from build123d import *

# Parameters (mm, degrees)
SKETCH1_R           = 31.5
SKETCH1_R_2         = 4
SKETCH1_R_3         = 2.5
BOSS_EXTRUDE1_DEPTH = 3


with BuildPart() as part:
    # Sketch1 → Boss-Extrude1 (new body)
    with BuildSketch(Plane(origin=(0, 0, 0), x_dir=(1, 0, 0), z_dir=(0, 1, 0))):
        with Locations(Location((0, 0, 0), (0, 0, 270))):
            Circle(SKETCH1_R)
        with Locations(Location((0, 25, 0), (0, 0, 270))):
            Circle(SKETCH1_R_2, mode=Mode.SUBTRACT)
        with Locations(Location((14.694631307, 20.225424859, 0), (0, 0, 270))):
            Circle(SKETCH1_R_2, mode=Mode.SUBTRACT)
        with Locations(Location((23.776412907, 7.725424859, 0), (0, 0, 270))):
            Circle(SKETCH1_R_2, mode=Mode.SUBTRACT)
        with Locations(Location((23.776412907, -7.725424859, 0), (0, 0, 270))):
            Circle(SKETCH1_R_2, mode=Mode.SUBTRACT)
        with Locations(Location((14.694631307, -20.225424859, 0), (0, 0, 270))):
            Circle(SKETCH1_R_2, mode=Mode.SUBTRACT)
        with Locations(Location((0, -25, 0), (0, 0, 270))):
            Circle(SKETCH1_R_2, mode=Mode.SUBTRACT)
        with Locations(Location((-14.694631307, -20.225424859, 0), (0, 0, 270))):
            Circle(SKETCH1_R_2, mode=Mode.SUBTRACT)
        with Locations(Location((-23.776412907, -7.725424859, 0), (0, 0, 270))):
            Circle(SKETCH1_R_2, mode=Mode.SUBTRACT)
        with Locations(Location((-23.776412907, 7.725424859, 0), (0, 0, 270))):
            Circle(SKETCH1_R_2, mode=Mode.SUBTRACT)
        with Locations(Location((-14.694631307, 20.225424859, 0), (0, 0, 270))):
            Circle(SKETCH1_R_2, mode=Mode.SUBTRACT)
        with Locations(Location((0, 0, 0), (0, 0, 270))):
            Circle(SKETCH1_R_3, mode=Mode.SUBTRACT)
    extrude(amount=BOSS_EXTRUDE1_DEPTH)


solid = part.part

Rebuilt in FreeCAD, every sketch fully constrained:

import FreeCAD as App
import Part
import Sketcher

doc = App.newDocument("Part")
params = doc.addObject("Spreadsheet::Sheet", "Params")
for row, (alias, value) in enumerate([
    ("sketch1_diameter", "63 mm"),
    ("sketch1_diameter2", "8 mm"),
    ("sketch1_diameter3", "5 mm"),
    ("pad1_length", "3 mm"),
], start=1):
    params.set(f"A{row}", alias)
    params.set(f"B{row}", "=" + value)
    params.setAlias(f"B{row}", alias)

body = doc.addObject("PartDesign::Body", "Body")

sketch1 = body.newObject("Sketcher::SketchObject", "Sketch")
sketch1.AttachmentSupport = (doc.getObject("XZ_Plane"), [""])
sketch1.MapMode = "FlatFace"
sketch1.addGeometry([
    Part.Circle(App.Vector(0, 0, 0), App.Vector(0, 0, 1), 31.5),
    Part.Circle(App.Vector(-14.7, -20.2, 0), App.Vector(0, 0, 1), 4),
    Part.Circle(App.Vector(-23.8, -7.7, 0), App.Vector(0, 0, 1), 4),
    Part.Circle(App.Vector(0, -25, 0), App.Vector(0, 0, 1), 4),
    Part.Circle(App.Vector(-23.8, 7.7, 0), App.Vector(0, 0, 1), 4),
    Part.Circle(App.Vector(-14.7, 20.2, 0), App.Vector(0, 0, 1), 4),
    Part.Circle(App.Vector(14.7, -20.2, 0), App.Vector(0, 0, 1), 4),
    Part.Circle(App.Vector(23.8, -7.7, 0), App.Vector(0, 0, 1), 4),
    Part.Circle(App.Vector(0, 0, 0), App.Vector(0, 0, 1), 2.5),
    Part.Circle(App.Vector(0, 25, 0), App.Vector(0, 0, 1), 4),
    Part.Circle(App.Vector(23.8, 7.7, 0), App.Vector(0, 0, 1), 4),
    Part.Circle(App.Vector(14.7, 20.2, 0), App.Vector(0, 0, 1), 4),
], False)
sketch1.addConstraint([
    Sketcher.Constraint("Coincident", 0, 3, -1, 1),
    Sketcher.Constraint("Coincident", 8, 3, -1, 1),
    Sketcher.Constraint("Equal", 1, 2),
    Sketcher.Constraint("Equal", 2, 3),
    Sketcher.Constraint("Equal", 3, 4),
    Sketcher.Constraint("Equal", 4, 5),
    Sketcher.Constraint("Equal", 5, 6),
    Sketcher.Constraint("Equal", 6, 7),
    Sketcher.Constraint("Equal", 7, 9),
    Sketcher.Constraint("Equal", 9, 10),
    Sketcher.Constraint("Equal", 10, 11),
    Sketcher.Constraint("Symmetric", 5, 3, 6, 3, -1, 1),
    Sketcher.Constraint("Symmetric", 4, 3, 7, 3, -1, 1),
    Sketcher.Constraint("Symmetric", 3, 3, 9, 3, -1, 1),
    Sketcher.Constraint("Symmetric", 2, 3, 10, 3, -1, 1),
    Sketcher.Constraint("Symmetric", 1, 3, 11, 3, -1, 1),
    Sketcher.Constraint("Symmetric", 1, 3, 6, 3, -2),
    Sketcher.Constraint("Symmetric", 2, 3, 7, 3, -2),
    Sketcher.Constraint("PointOnObject", 3, 3, -2),
    Sketcher.Constraint("Diameter", 0, 63.0),
    Sketcher.Constraint("Diameter", 1, 8.0),
    Sketcher.Constraint("Diameter", 8, 5.0),
    Sketcher.Constraint("DistanceY", 3, 3, -1, 1, 25.0),
    Sketcher.Constraint("DistanceY", 1, 3, 2, 3, 12.5),
    Sketcher.Constraint("DistanceX", 1, 3, -1, 1, 14.694631),
    Sketcher.Constraint("DistanceX", 2, 3, 1, 3, 9.081782),
    Sketcher.Constraint("DistanceY", 2, 3, 4, 3, 15.45085),
])
sketch1.setExpression("Constraints[19]", "Params.sketch1_diameter")
sketch1.setExpression("Constraints[20]", "Params.sketch1_diameter2")
sketch1.setExpression("Constraints[21]", "Params.sketch1_diameter3")
pad1 = body.newObject("PartDesign::Pad", "Pad")
pad1.Profile = sketch1
pad1.setExpression("Length", "Params.pad1_length")
pad1.Reversed = True

doc.recompute()
